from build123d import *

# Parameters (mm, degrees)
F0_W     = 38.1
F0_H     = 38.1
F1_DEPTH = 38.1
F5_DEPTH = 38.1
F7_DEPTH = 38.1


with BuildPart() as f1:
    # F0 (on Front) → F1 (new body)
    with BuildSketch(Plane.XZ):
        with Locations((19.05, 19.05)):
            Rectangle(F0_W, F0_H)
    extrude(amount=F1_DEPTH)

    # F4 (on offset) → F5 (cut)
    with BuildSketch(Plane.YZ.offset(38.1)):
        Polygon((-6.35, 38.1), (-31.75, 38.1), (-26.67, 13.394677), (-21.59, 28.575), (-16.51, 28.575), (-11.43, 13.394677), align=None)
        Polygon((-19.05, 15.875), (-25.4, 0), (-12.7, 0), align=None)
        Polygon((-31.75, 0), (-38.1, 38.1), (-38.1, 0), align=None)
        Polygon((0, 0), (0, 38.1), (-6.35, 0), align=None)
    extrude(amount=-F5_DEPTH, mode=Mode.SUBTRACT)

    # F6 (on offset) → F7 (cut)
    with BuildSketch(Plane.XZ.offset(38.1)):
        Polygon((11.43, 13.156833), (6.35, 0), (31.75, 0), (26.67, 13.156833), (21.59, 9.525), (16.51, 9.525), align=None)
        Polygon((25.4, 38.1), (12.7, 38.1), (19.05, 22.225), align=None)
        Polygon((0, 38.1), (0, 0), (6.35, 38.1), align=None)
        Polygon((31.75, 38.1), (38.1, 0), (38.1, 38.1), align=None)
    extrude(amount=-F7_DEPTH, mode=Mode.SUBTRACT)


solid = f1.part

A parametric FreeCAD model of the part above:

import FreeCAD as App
import Part
import Sketcher

V = App.Vector
Q = App.Units.Quantity


def add_polygon(sketch, points):
    """Adds a closed chain of lines whose ends are joined by coincident constraints."""
    first, n = sketch.GeometryCount, len(points)
    for a, b in zip(points, points[1:] + points[:1]):
        sketch.addGeometry(Part.LineSegment(App.Vector(*a, 0), App.Vector(*b, 0)), False)
    for i in range(n):
        sketch.addConstraint(Sketcher.Constraint("Coincident", first + i, 2, first + (i + 1) % n, 1))

doc = App.newDocument("Part")
body = doc.addObject("PartDesign::Body", "Body")

# Sketch on XZ plane
sketch1 = doc.addObject("Sketcher::SketchObject", "Sketch")
body.addObject(sketch1)
sketch1.AttachmentSupport = (doc.XZ_Plane, [""])
sketch1.MapMode = "FlatFace"
add_polygon(sketch1, [(0, 38.1), (0, 0), (38.1, 0), (38.1, 38.1)])  # lines 0-3
sketch1.addConstraint([
    Sketcher.Constraint("Vertical", 0),
    Sketcher.Constraint("Horizontal", 1),
    Sketcher.Constraint("Vertical", 2),
    Sketcher.Constraint("Horizontal", 3),
    Sketcher.Constraint("Coincident", 0, 2, -1, 1),
    Sketcher.Constraint("Equal", 3, 0),
    Sketcher.Constraint("DistanceX", 1, 1, 1, 2, Q("1.5 in")),
])
pad1 = doc.addObject("PartDesign::Pad", "Pad")
body.addObject(pad1)
pad1.Profile = sketch1
pad1.Length = Q("1.5 in")

# Sketch on YZ plane
sketch2 = doc.addObject("Sketcher::SketchObject", "Sketch001")
body.addObject(sketch2)
sketch2.AttachmentSupport = (doc.YZ_Plane, [""])
sketch2.MapMode = "FlatFace"
sketch2.AttachmentOffset = App.Placement(V(0, 0, 1.5 * 25.4), App.Rotation())
add_polygon(sketch2, [(-6.35, 38.1), (-31.75, 38.1), (-26.67, 13.394677), (-21.59, 28.575), (-16.51, 28.575), (-11.43, 13.394677)])  # lines 0-5
add_polygon(sketch2, [(-19.05, 15.875), (-25.4, 0), (-12.7, 0)])  # lines 6-8
add_polygon(sketch2, [(-31.75, 0), (-38.1, 38.1), (-38.1, 0)])  # lines 9-11
add_polygon(sketch2, [(0, 0), (0, 38.1), (-6.35, 0)])  # lines 12-14
sketch2.addConstraint([
    Sketcher.Constraint("Horizontal", 0),
    Sketcher.Constraint("Horizontal", 3),
    Sketcher.Constraint("Horizontal", 7),
    Sketcher.Constraint("Vertical", 10),
    Sketcher.Constraint("Horizontal", 11),
    Sketcher.Constraint("Vertical", 12),
    Sketcher.Constraint("Horizontal", 14),
    Sketcher.Constraint("Coincident", 14, 2, -1, 1),
    Sketcher.Constraint("PointOnObject", 6, 2, -1),
    Sketcher.Constraint("PointOnObject", 10, 2, -1),
    Sketcher.Constraint("Horizontal", 1, 2, 4, 2),
    Sketcher.Constraint("Horizontal", 5, 2, 9, 2),
    Sketcher.Constraint("Horizontal", 9, 2, 12, 2),
    Sketcher.Constraint("Vertical", 0, 2, 11, 2),
    Sketcher.Constraint("Vertical", 5, 2, 13, 2),
    Sketcher.Constraint("Equal", 11, 14),
    Sketcher.Constraint("Equal", 2, 4),
    Sketcher.Constraint("Equal", 1, 5),
    Sketcher.Constraint("Equal", 6, 8),
    Sketcher.Constraint("DistanceX", 0, 2, 0, 1, Q("1 in")),
    Sketcher.Constraint("DistanceX", 3, 1, 3, 2, Q("0.2 in")),
    Sketcher.Constraint("DistanceX", 7, 1, 7, 2, Q("0.5 in")),
    Sketcher.Constraint("DistanceY", 10, 2, 10, 1, Q("1.5 in")),
    Sketcher.Constraint("DistanceX", 6, 2, -1, 1, Q("1 in")),
    Sketcher.Constraint("DistanceX", 10, 2, 7, 2, Q("1 in")),
    Sketcher.Constraint("DistanceX", 0, 2, 1, 2, Q("0.2 in")),
    Sketcher.Constraint("DistanceY", 8, 2, 2, 2, Q("0.5 in")),
    Sketcher.Constraint("Distance", 1, Q("0.993 in")),
    Sketcher.Constraint("DistanceY", -1, 1, 2, 2, Q("1.125 in")),
])
pocket1 = doc.addObject("PartDesign::Pocket", "Pocket")
body.addObject(pocket1)
pocket1.Profile = sketch2
pocket1.Length = Q("1.5 in")

# Sketch on XZ plane
sketch3 = doc.addObject("Sketcher::SketchObject", "Sketch002")
body.addObject(sketch3)
sketch3.AttachmentSupport = (doc.XZ_Plane, [""])
sketch3.MapMode = "FlatFace"
sketch3.AttachmentOffset = App.Placement(V(0, 0, 1.5 * 25.4), App.Rotation())
add_polygon(sketch3, [(11.43, 13.156833), (6.35, 0), (31.75, 0), (26.67, 13.156833), (21.59, 9.525), (16.51, 9.525)])  # lines 0-5
add_polygon(sketch3, [(25.4, 38.1), (12.7, 38.1), (19.05, 22.225)])  # lines 6-8
add_polygon(sketch3, [(0, 38.1), (0, 0), (6.35, 38.1)])  # lines 9-11
add_polygon(sketch3, [(31.75, 38.1), (38.1, 0), (38.1, 38.1)])  # lines 12-14
sketch3.addConstraint([
    Sketcher.Constraint("Horizontal", 1),
    Sketcher.Constraint("Horizontal", 4),
    Sketcher.Constraint("Horizontal", 6),
    Sketcher.Constraint("Vertical", 9),
    Sketcher.Constraint("Horizontal", 11),
    Sketcher.Constraint("Vertical", 13),
    Sketcher.Constraint("Horizontal", 14),
    Sketcher.Constraint("Coincident", 9, 2, -1, 1),
    Sketcher.Constraint("PointOnObject", 0, 2, -1),
    Sketcher.Constraint("PointOnObject", 12, 2, -1),
    Sketcher.Constraint("Horizontal", 2, 2, 5, 2),
    Sketcher.Constraint("Horizontal", 8, 2, 10, 2),
    Sketcher.Constraint("Horizontal", 11, 2, 13, 2),
    Sketcher.Constraint("Vertical", 0, 2, 10, 2),
    Sketcher.Constraint("Vertical", 1, 2, 14, 2),
    Sketcher.Constraint("Equal", 11, 14),
    Sketcher.Constraint("Equal", 0, 2),
    Sketcher.Constraint("Equal", 3, 5),
    Sketcher.Constraint("Equal", 7, 8),
    Sketcher.Constraint("DistanceX", 1, 1, 1, 2, Q("1 in")),
    Sketcher.Constraint("DistanceX", 4, 2, 4, 1, Q("0.2 in")),
    Sketcher.Constraint("DistanceX", 6, 2, 6, 1, Q("0.5 in")),
    Sketcher.Constraint("DistanceY", 9, 2, 9, 1, Q("1.5 in")),
    Sketcher.Constraint("DistanceX", -1, 1, 8, 2, Q("1 in")),
    Sketcher.Constraint("DistanceX", 6, 2, 13, 2, Q("1 in")),
    Sketcher.Constraint("DistanceX", 2, 2, 1, 2, Q("0.2 in")),
    Sketcher.Constraint("DistanceY", 3, 2, 7, 2, Q("0.5 in")),
    Sketcher.Constraint("DistanceY", -1, 1, 3, 2, Q("0.375 in")),
    Sketcher.Constraint("Distance", 0, 14.103498),
])
pocket2 = doc.addObject("PartDesign::Pocket", "Pocket001")
body.addObject(pocket2)
pocket2.Profile = sketch3
pocket2.Length = Q("1.5 in")

doc.recompute()
